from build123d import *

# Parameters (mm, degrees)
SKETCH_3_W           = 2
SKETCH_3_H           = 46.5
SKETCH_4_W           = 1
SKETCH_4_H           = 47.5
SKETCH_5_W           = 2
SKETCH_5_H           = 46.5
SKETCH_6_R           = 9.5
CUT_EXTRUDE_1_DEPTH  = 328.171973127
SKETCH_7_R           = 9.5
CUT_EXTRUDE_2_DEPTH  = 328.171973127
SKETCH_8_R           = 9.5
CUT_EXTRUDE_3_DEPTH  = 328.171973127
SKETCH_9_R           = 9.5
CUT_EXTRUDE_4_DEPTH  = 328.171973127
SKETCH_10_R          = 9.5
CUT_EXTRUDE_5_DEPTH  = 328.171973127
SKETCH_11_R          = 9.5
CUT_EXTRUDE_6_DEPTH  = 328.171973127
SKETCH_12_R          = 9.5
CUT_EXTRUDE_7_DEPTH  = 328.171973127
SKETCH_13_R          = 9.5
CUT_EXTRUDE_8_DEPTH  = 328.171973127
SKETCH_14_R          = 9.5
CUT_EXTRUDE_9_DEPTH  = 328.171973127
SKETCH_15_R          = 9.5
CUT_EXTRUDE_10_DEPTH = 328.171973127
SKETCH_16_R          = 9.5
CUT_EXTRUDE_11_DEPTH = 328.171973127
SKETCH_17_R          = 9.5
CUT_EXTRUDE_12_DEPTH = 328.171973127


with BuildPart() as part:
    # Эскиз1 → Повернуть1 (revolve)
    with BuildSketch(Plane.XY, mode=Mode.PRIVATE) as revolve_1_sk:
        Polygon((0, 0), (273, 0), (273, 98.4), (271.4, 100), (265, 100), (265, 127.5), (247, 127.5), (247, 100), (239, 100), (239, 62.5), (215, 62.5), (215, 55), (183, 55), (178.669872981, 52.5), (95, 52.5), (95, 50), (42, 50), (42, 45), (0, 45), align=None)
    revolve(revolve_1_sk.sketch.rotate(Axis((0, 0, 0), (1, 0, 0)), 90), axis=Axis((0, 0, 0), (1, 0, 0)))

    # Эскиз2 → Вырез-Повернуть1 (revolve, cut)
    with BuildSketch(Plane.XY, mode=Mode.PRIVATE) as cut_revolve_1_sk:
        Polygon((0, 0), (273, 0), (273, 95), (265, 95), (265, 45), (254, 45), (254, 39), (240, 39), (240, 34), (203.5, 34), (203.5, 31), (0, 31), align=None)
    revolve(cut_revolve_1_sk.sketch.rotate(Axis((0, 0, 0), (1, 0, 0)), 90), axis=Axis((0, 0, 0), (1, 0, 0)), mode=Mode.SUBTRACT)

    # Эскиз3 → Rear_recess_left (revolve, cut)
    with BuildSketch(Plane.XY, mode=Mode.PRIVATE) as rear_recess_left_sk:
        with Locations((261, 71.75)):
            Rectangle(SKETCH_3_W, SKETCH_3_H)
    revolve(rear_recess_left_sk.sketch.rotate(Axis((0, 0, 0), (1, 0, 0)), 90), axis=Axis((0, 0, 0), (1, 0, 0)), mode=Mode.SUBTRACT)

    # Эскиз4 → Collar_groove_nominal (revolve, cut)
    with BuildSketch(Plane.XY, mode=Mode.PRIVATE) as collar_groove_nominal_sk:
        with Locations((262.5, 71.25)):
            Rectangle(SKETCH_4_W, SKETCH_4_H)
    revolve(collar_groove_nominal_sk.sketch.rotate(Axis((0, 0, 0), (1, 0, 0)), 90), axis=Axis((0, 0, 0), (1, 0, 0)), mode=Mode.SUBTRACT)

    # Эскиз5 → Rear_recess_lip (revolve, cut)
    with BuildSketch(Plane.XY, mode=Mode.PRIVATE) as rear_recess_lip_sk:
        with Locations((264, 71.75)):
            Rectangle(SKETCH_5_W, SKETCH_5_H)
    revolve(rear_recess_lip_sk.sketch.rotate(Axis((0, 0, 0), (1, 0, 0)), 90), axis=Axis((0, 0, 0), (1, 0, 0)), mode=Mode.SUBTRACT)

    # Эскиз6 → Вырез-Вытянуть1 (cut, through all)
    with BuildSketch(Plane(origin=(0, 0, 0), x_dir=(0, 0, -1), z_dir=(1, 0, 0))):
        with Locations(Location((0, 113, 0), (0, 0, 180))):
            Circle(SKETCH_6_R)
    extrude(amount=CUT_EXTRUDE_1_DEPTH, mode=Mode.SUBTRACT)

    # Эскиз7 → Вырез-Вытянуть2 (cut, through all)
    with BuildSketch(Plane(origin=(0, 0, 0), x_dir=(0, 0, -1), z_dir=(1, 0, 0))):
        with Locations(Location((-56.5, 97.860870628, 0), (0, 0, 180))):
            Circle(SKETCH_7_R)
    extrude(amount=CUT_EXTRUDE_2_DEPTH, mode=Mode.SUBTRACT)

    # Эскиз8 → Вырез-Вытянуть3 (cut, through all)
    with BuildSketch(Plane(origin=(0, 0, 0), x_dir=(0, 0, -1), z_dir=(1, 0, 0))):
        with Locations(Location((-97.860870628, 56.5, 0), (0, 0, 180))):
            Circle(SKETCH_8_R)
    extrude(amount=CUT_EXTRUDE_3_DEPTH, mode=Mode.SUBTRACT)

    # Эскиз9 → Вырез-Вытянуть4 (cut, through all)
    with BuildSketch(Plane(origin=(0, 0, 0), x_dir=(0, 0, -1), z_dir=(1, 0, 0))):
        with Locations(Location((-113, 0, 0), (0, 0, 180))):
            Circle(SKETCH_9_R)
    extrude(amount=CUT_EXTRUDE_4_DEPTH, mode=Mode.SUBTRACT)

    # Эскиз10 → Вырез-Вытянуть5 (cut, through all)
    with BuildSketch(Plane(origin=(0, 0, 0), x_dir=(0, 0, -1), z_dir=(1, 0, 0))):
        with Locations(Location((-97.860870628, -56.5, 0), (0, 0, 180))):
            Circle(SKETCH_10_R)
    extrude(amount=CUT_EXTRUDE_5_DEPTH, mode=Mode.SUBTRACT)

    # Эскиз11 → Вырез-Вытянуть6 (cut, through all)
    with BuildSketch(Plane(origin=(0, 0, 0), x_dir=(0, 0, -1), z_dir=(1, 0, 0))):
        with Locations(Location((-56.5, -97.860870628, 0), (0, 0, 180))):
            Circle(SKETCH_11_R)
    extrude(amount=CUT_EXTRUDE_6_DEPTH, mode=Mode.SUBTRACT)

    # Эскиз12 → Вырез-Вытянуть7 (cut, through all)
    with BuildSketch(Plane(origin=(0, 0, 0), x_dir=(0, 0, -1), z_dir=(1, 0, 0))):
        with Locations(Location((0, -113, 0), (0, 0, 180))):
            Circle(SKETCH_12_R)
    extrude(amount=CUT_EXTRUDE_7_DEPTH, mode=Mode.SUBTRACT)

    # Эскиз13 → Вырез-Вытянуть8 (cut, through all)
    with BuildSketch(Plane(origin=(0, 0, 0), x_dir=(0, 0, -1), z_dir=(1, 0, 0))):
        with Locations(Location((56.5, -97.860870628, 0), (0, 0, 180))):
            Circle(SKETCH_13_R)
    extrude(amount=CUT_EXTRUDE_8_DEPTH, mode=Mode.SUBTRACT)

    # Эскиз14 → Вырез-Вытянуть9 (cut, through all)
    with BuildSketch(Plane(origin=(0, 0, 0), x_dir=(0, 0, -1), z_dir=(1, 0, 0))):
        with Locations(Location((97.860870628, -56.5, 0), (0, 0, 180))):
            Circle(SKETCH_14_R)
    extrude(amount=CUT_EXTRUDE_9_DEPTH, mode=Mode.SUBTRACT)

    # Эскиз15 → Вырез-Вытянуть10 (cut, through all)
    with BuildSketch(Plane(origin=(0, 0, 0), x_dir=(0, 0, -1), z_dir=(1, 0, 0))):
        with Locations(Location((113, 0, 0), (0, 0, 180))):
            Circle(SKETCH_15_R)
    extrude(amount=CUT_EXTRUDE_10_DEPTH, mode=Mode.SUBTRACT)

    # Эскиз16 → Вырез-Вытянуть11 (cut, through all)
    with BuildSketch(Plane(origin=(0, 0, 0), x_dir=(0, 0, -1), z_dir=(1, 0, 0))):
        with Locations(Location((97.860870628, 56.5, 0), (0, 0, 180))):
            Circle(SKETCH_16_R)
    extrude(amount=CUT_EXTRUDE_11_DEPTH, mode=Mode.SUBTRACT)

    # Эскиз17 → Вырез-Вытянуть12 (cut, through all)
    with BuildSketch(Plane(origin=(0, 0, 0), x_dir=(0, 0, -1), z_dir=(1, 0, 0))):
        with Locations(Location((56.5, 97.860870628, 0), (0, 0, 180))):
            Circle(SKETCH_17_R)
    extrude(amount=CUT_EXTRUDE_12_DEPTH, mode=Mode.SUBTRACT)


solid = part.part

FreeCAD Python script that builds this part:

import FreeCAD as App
import Part
import Sketcher

V = App.Vector
Q = App.Units.Quantity

doc = App.newDocument("Part")
body = doc.addObject("PartDesign::Body", "Body")

sketch1 = body.newObject("Sketcher::SketchObject", "Sketch")
sketch1.AttachmentSupport = (doc.getObject("XY_Plane"), [""])
sketch1.MapMode = "FlatFace"
sketch1.addGeometry([
    Part.LineSegment(V(0, 0, 0), V(273, 0, 0)),
    Part.LineSegment(V(273, 0, 0), V(273, 98.4, 0)),
    Part.LineSegment(V(273, 98.4, 0), V(271.4, 100, 0)),
    Part.LineSegment(V(271.4, 100, 0), V(265, 100, 0)),
    Part.LineSegment(V(265, 100, 0), V(265, 127.5, 0)),
    Part.LineSegment(V(265, 127.5, 0), V(247, 127.5, 0)),
    Part.LineSegment(V(247, 127.5, 0), V(247, 100, 0)),
    Part.LineSegment(V(247, 100, 0), V(239, 100, 0)),
    Part.LineSegment(V(239, 100, 0), V(239, 62.5, 0)),
    Part.LineSegment(V(239, 62.5, 0), V(215, 62.5, 0)),
    Part.LineSegment(V(215, 62.5, 0), V(215, 55, 0)),
    Part.LineSegment(V(215, 55, 0), V(183, 55, 0)),
    Part.LineSegment(V(183, 55, 0), V(178.669873, 52.5, 0)),
    Part.LineSegment(V(178.669873, 52.5, 0), V(95, 52.5, 0)),
    Part.LineSegment(V(95, 52.5, 0), V(95, 50, 0)),
    Part.LineSegment(V(95, 50, 0), V(42, 50, 0)),
    Part.LineSegment(V(42, 50, 0), V(42, 45, 0)),
    Part.LineSegment(V(42, 45, 0), V(0, 45, 0)),
    Part.LineSegment(V(0, 45, 0), V(0, 0, 0)),
], False)
sketch1.addConstraint([
    Sketcher.Constraint("Coincident", 0, 2, 1, 1),
    Sketcher.Constraint("Coincident", 1, 2, 2, 1),
    Sketcher.Constraint("Coincident", 2, 2, 3, 1),
    Sketcher.Constraint("Coincident", 3, 2, 4, 1),
    Sketcher.Constraint("Coincident", 4, 2, 5, 1),
    Sketcher.Constraint("Coincident", 5, 2, 6, 1),
    Sketcher.Constraint("Coincident", 6, 2, 7, 1),
    Sketcher.Constraint("Coincident", 7, 2, 8, 1),
    Sketcher.Constraint("Coincident", 8, 2, 9, 1),
    Sketcher.Constraint("Coincident", 9, 2, 10, 1),
    Sketcher.Constraint("Coincident", 10, 2, 11, 1),
    Sketcher.Constraint("Coincident", 11, 2, 12, 1),
    Sketcher.Constraint("Coincident", 12, 2, 13, 1),
    Sketcher.Constraint("Coincident", 13, 2, 14, 1),
    Sketcher.Constraint("Coincident", 14, 2, 15, 1),
    Sketcher.Constraint("Coincident", 15, 2, 16, 1),
    Sketcher.Constraint("Coincident", 16, 2, 17, 1),
    Sketcher.Constraint("Coincident", 17, 2, 18, 1),
    Sketcher.Constraint("Coincident", 18, 2, 0, 1),
    Sketcher.Constraint("Horizontal", 0),
    Sketcher.Constraint("Vertical", 1),
    Sketcher.Constraint("Horizontal", 3),
    Sketcher.Constraint("Vertical", 4),
    Sketcher.Constraint("Horizontal", 5),
    Sketcher.Constraint("Vertical", 6),
    Sketcher.Constraint("Horizontal", 7),
    Sketcher.Constraint("Vertical", 8),
    Sketcher.Constraint("Horizontal", 9),
    Sketcher.Constraint("Vertical", 10),
    Sketcher.Constraint("Horizontal", 11),
    Sketcher.Constraint("Horizontal", 13),
    Sketcher.Constraint("Vertical", 14),
    Sketcher.Constraint("Horizontal", 15),
    Sketcher.Constraint("Vertical", 16),
    Sketcher.Constraint("Horizontal", 17),
    Sketcher.Constraint("Vertical", 18),
    Sketcher.Constraint("Coincident", 18, 2, -1, 1),
    Sketcher.Constraint("Horizontal", 3, 2, 6, 2),
    Sketcher.Constraint("DistanceX", 0, 1, 0, 2, 273.0),
    Sketcher.Constraint("DistanceX", 5, 2, 5, 1, 18.0),
    Sketcher.Constraint("DistanceX", 7, 2, 7, 1, 8.0),
    Sketcher.Constraint("DistanceX", 9, 2, 9, 1, 24.0),
    Sketcher.Constraint("DistanceX", 11, 2, 11, 1, 32.0),
    Sketcher.Constraint("DistanceX", 15, 2, 15, 1, 53.0),
    Sketcher.Constraint("DistanceX", 17, 2, 17, 1, 42.0),
    Sketcher.Constraint("DistanceY", 16, 2, 16, 1, 5.0),
    Sketcher.Constraint("DistanceY", 18, 2, 18, 1, 45.0),
    Sketcher.Constraint("Angle", 2, Q("135 deg")),
    Sketcher.Constraint("Angle", 12, Q("-150 deg")),
    Sketcher.Constraint("Distance", 12, 5.0),
    Sketcher.Constraint("DistanceX", 3, 2, 3, 1, 6.4),
    Sketcher.Constraint("DistanceY", 1, 1, 1, 2, 98.4),
    Sketcher.Constraint("DistanceY", 4, 1, 4, 2, 27.5),
    Sketcher.Constraint("DistanceY", 8, 2, 8, 1, 37.5),
    Sketcher.Constraint("DistanceY", 10, 2, 10, 1, 7.5),
    Sketcher.Constraint("DistanceY", 14, 2, 14, 1, 2.5),
])
revolution = body.newObject("PartDesign::Revolution", "Revolution")
revolution.Profile = sketch1
revolution.ReferenceAxis = (sketch1, ["H_Axis"])
revolution.Angle = 360

sketch2 = body.newObject("Sketcher::SketchObject", "Sketch001")
sketch2.AttachmentSupport = (doc.getObject("XY_Plane"), [""])
sketch2.MapMode = "FlatFace"
sketch2.addGeometry([
    Part.LineSegment(V(0, 0, 0), V(273, 0, 0)),
    Part.LineSegment(V(273, 0, 0), V(273, 95, 0)),
    Part.LineSegment(V(273, 95, 0), V(265, 95, 0)),
    Part.LineSegment(V(265, 95, 0), V(265, 45, 0)),
    Part.LineSegment(V(265, 45, 0), V(254, 45, 0)),
    Part.LineSegment(V(254, 45, 0), V(254, 39, 0)),
    Part.LineSegment(V(254, 39, 0), V(240, 39, 0)),
    Part.LineSegment(V(240, 39, 0), V(240, 34, 0)),
    Part.LineSegment(V(240, 34, 0), V(203.5, 34, 0)),
    Part.LineSegment(V(203.5, 34, 0), V(203.5, 31, 0)),
    Part.LineSegment(V(203.5, 31, 0), V(0, 31, 0)),
    Part.LineSegment(V(0, 31, 0), V(0, 0, 0)),
], False)
sketch2.addConstraint([
    Sketcher.Constraint("Coincident", 0, 2, 1, 1),
    Sketcher.Constraint("Coincident", 1, 2, 2, 1),
    Sketcher.Constraint("Coincident", 2, 2, 3, 1),
    Sketcher.Constraint("Coincident", 3, 2, 4, 1),
    Sketcher.Constraint("Coincident", 4, 2, 5, 1),
    Sketcher.Constraint("Coincident", 5, 2, 6, 1),
    Sketcher.Constraint("Coincident", 6, 2, 7, 1),
    Sketcher.Constraint("Coincident", 7, 2, 8, 1),
    Sketcher.Constraint("Coincident", 8, 2, 9, 1),
    Sketcher.Constraint("Coincident", 9, 2, 10, 1),
    Sketcher.Constraint("Coincident", 10, 2, 11, 1),
    Sketcher.Constraint("Coincident", 11, 2, 0, 1),
    Sketcher.Constraint("Horizontal", 0),
    Sketcher.Constraint("Vertical", 1),
    Sketcher.Constraint("Horizontal", 2),
    Sketcher.Constraint("Vertical", 3),
    Sketcher.Constraint("Horizontal", 4),
    Sketcher.Constraint("Vertical", 5),
    Sketcher.Constraint("Horizontal", 6),
    Sketcher.Constraint("Vertical", 7),
    Sketcher.Constraint("Horizontal", 8),
    Sketcher.Constraint("Vertical", 9),
    Sketcher.Constraint("Horizontal", 10),
    Sketcher.Constraint("Vertical", 11),
    Sketcher.Constraint("Coincident", 11, 2, -1, 1),
    Sketcher.Constraint("DistanceX", 0, 1, 0, 2, 273.0),
    Sketcher.Constraint("DistanceX", 2, 2, 2, 1, 8.0),
    Sketcher.Constraint("DistanceX", 4, 2, 4, 1, 11.0),
    Sketcher.Constraint("DistanceX", 6, 2, 6, 1, 14.0),
    Sketcher.Constraint("DistanceY", 1, 1, 1, 2, 95.0),
    Sketcher.Constraint("DistanceY", 3, 2, 3, 1, 50.0),
    Sketcher.Constraint("DistanceY", 5, 2, 5, 1, 6.0),
    Sketcher.Constraint("DistanceY", 7, 2, 7, 1, 5.0),
    Sketcher.Constraint("DistanceY", 9, 2, 9, 1, 3.0),
    Sketcher.Constraint("DistanceX", 8, 2, 8, 1, 36.5),
])
groove = body.newObject("PartDesign::Groove", "Groove")
groove.Profile = sketch2
groove.ReferenceAxis = (sketch2, ["H_Axis"])
groove.Angle = 360

sketch3 = body.newObject("Sketcher::SketchObject", "Sketch002")
sketch3.AttachmentSupport = (doc.getObject("XY_Plane"), [""])
sketch3.MapMode = "FlatFace"
sketch3.addGeometry([
    Part.LineSegment(V(260, 95, 0), V(260, 48.5, 0)),
    Part.LineSegment(V(260, 48.5, 0), V(262, 48.5, 0)),
    Part.LineSegment(V(262, 48.5, 0), V(262, 95, 0)),
    Part.LineSegment(V(262, 95, 0), V(260, 95, 0)),
], False)
sketch3.addConstraint([
    Sketcher.Constraint("Coincident", 0, 2, 1, 1),
    Sketcher.Constraint("Coincident", 1, 2, 2, 1),
    Sketcher.Constraint("Coincident", 2, 2, 3, 1),
    Sketcher.Constraint("Coincident", 3, 2, 0, 1),
    Sketcher.Constraint("Vertical", 0),
    Sketcher.Constraint("Horizontal", 1),
    Sketcher.Constraint("Vertical", 2),
    Sketcher.Constraint("Horizontal", 3),
    Sketcher.Constraint("DistanceX", 1, 1, 1, 2, 2.0),
    Sketcher.Constraint("DistanceY", 0, 2, 0, 1, 46.5),
    Sketcher.Constraint("DistanceX", -1, 1, 0, 2, 260.0),
    Sketcher.Constraint("DistanceY", -1, 1, 2, 2, 95.0),
])
groove2 = body.newObject("PartDesign::Groove", "Groove001")
groove2.Profile = sketch3
groove2.ReferenceAxis = (sketch3, ["H_Axis"])
groove2.Angle = 360

sketch4 = body.newObject("Sketcher::SketchObject", "Sketch003")
sketch4.AttachmentSupport = (doc.getObject("XY_Plane"), [""])
sketch4.MapMode = "FlatFace"
sketch4.addGeometry([
    Part.LineSegment(V(262, 95, 0), V(262, 47.5, 0)),
    Part.LineSegment(V(262, 47.5, 0), V(263, 47.5, 0)),
    Part.LineSegment(V(263, 47.5, 0), V(263, 95, 0)),
    Part.LineSegment(V(263, 95, 0), V(262, 95, 0)),
], False)
sketch4.addConstraint([
    Sketcher.Constraint("Coincident", 0, 2, 1, 1),
    Sketcher.Constraint("Coincident", 1, 2, 2, 1),
    Sketcher.Constraint("Coincident", 2, 2, 3, 1),
    Sketcher.Constraint("Coincident", 3, 2, 0, 1),
    Sketcher.Constraint("Vertical", 0),
    Sketcher.Constraint("Horizontal", 1),
    Sketcher.Constraint("Vertical", 2),
    Sketcher.Constraint("Horizontal", 3),
    Sketcher.Constraint("DistanceX", 1, 1, 1, 2, 1.0),
    Sketcher.Constraint("DistanceY", 0, 2, 0, 1, 47.5),
    Sketcher.Constraint("DistanceX", -1, 1, 0, 2, 262.0),
    Sketcher.Constraint("DistanceY", -1, 1, 2, 2, 95.0),
])
groove3 = body.newObject("PartDesign::Groove", "Groove002")
groove3.Profile = sketch4
groove3.ReferenceAxis = (sketch4, ["H_Axis"])
groove3.Angle = 360

sketch5 = body.newObject("Sketcher::SketchObject", "Sketch004")
sketch5.AttachmentSupport = (doc.getObject("XY_Plane"), [""])
sketch5.MapMode = "FlatFace"
sketch5.addGeometry([
    Part.LineSegment(V(263, 95, 0), V(263, 48.5, 0)),
    Part.LineSegment(V(263, 48.5, 0), V(265, 48.5, 0)),
    Part.LineSegment(V(265, 48.5, 0), V(265, 95, 0)),
    Part.LineSegment(V(265, 95, 0), V(263, 95, 0)),
], False)
sketch5.addConstraint([
    Sketcher.Constraint("Coincident", 0, 2, 1, 1),
    Sketcher.Constraint("Coincident", 1, 2, 2, 1),
    Sketcher.Constraint("Coincident", 2, 2, 3, 1),
    Sketcher.Constraint("Coincident", 3, 2, 0, 1),
    Sketcher.Constraint("Vertical", 0),
    Sketcher.Constraint("Horizontal", 1),
    Sketcher.Constraint("Vertical", 2),
    Sketcher.Constraint("Horizontal", 3),
    Sketcher.Constraint("DistanceX", 1, 1, 1, 2, 2.0),
    Sketcher.Constraint("DistanceY", 0, 2, 0, 1, 46.5),
    Sketcher.Constraint("DistanceX", -1, 1, 0, 2, 263.0),
    Sketcher.Constraint("DistanceY", -1, 1, 2, 2, 95.0),
])
groove4 = body.newObject("PartDesign::Groove", "Groove003")
groove4.Profile = sketch5
groove4.ReferenceAxis = (sketch5, ["H_Axis"])
groove4.Angle = 360

sketch6 = body.newObject("Sketcher::SketchObject", "Sketch005")
sketch6.AttachmentSupport = (doc.getObject("YZ_Plane"), [""])
sketch6.MapMode = "FlatFace"
sketch6.addGeometry(Part.Circle(V(113, 0, 0), V(0, 0, 1), 9.5), False)
sketch6.addConstraint([
    Sketcher.Constraint("PointOnObject", 0, 3, -1),
    Sketcher.Constraint("Diameter", 0, 19.0),
    Sketcher.Constraint("DistanceX", -1, 1, 0, 3, 113.0),
])
pocket1 = body.newObject("PartDesign::Pocket", "Pocket")
pocket1.Profile = sketch6
pocket1.Type = "ThroughAll"
pocket1.Reversed = True

sketch7 = body.newObject("Sketcher::SketchObject", "Sketch006")
sketch7.AttachmentSupport = (doc.getObject("YZ_Plane"), [""])
sketch7.MapMode = "FlatFace"
sketch7.addGeometry(Part.Circle(V(97.860871, 56.5, 0), V(0, 0, 1), 9.5), False)
sketch7.addConstraint([
    Sketcher.Constraint("Diameter", 0, 19.0),
    Sketcher.Constraint("DistanceY", -1, 1, 0, 3, 56.5),
    Sketcher.Constraint("DistanceX", -1, 1, 0, 3, 97.860871),
])
pocket2 = body.newObject("PartDesign::Pocket", "Pocket001")
pocket2.Profile = sketch7
pocket2.Type = "ThroughAll"
pocket2.Reversed = True

sketch8 = body.newObject("Sketcher::SketchObject", "Sketch007")
sketch8.AttachmentSupport = (doc.getObject("YZ_Plane"), [""])
sketch8.MapMode = "FlatFace"
sketch8.addGeometry(Part.Circle(V(56.5, 97.860871, 0), V(0, 0, 1), 9.5), False)
sketch8.addConstraint([
    Sketcher.Constraint("Diameter", 0, 19.0),
    Sketcher.Constraint("DistanceX", -1, 1, 0, 3, 56.5),
    Sketcher.Constraint("DistanceY", -1, 1, 0, 3, 97.860871),
])
pocket3 = body.newObject("PartDesign::Pocket", "Pocket002")
pocket3.Profile = sketch8
pocket3.Type = "ThroughAll"
pocket3.Reversed = True

sketch9 = body.newObject("Sketcher::SketchObject", "Sketch008")
sketch9.AttachmentSupport = (doc.getObject("YZ_Plane"), [""])
sketch9.MapMode = "FlatFace"
sketch9.addGeometry(Part.Circle(V(0, 113, 0), V(0, 0, 1), 9.5), False)
sketch9.addConstraint([
    Sketcher.Constraint("PointOnObject", 0, 3, -2),
    Sketcher.Constraint("Diameter", 0, 19.0),
    Sketcher.Constraint("DistanceY", -1, 1, 0, 3, 113.0),
])
pocket4 = body.newObject("PartDesign::Pocket", "Pocket003")
pocket4.Profile = sketch9
pocket4.Type = "ThroughAll"
pocket4.Reversed = True

sketch10 = body.newObject("Sketcher::SketchObject", "Sketch009")
sketch10.AttachmentSupport = (doc.getObject("YZ_Plane"), [""])
sketch10.MapMode = "FlatFace"
sketch10.addGeometry(Part.Circle(V(-56.5, 97.860871, 0), V(0, 0, 1), 9.5), False)
sketch10.addConstraint([
    Sketcher.Constraint("Diameter", 0, 19.0),
    Sketcher.Constraint("DistanceX", 0, 3, -1, 1, 56.5),
    Sketcher.Constraint("DistanceY", -1, 1, 0, 3, 97.860871),
])
pocket5 = body.newObject("PartDesign::Pocket", "Pocket004")
pocket5.Profile = sketch10
pocket5.Type = "ThroughAll"
pocket5.Reversed = True

sketch11 = body.newObject("Sketcher::SketchObject", "Sketch010")
sketch11.AttachmentSupport = (doc.getObject("YZ_Plane"), [""])
sketch11.MapMode = "FlatFace"
sketch11.addGeometry(Part.Circle(V(-97.860871, 56.5, 0), V(0, 0, 1), 9.5), False)
sketch11.addConstraint([
    Sketcher.Constraint("Diameter", 0, 19.0),
    Sketcher.Constraint("DistanceY", -1, 1, 0, 3, 56.5),
    Sketcher.Constraint("DistanceX", 0, 3, -1, 1, 97.860871),
])
pocket6 = body.newObject("PartDesign::Pocket", "Pocket005")
pocket6.Profile = sketch11
pocket6.Type = "ThroughAll"
pocket6.Reversed = True

sketch12 = body.newObject("Sketcher::SketchObject", "Sketch011")
sketch12.AttachmentSupport = (doc.getObject("YZ_Plane"), [""])
sketch12.MapMode = "FlatFace"
sketch12.addGeometry(Part.Circle(V(-113, 0, 0), V(0, 0, 1), 9.5), False)
sketch12.addConstraint([
    Sketcher.Constraint("PointOnObject", 0, 3, -1),
    Sketcher.Constraint("Diameter", 0, 19.0),
    Sketcher.Constraint("DistanceX", 0, 3, -1, 1, 113.0),
])
pocket7 = body.newObject("PartDesign::Pocket", "Pocket006")
pocket7.Profile = sketch12
pocket7.Type = "ThroughAll"
pocket7.Reversed = True

sketch13 = body.newObject("Sketcher::SketchObject", "Sketch012")
sketch13.AttachmentSupport = (doc.getObject("YZ_Plane"), [""])
sketch13.MapMode = "FlatFace"
sketch13.addGeometry(Part.Circle(V(-97.860871, -56.5, 0), V(0, 0, 1), 9.5), False)
sketch13.addConstraint([
    Sketcher.Constraint("Diameter", 0, 19.0),
    Sketcher.Constraint("DistanceY", 0, 3, -1, 1, 56.5),
    Sketcher.Constraint("DistanceX", 0, 3, -1, 1, 97.860871),
])
pocket8 = body.newObject("PartDesign::Pocket", "Pocket007")
pocket8.Profile = sketch13
pocket8.Type = "ThroughAll"
pocket8.Reversed = True

sketch14 = body.newObject("Sketcher::SketchObject", "Sketch013")
sketch14.AttachmentSupport = (doc.getObject("YZ_Plane"), [""])
sketch14.MapMode = "FlatFace"
sketch14.addGeometry(Part.Circle(V(-56.5, -97.860871, 0), V(0, 0, 1), 9.5), False)
sketch14.addConstraint([
    Sketcher.Constraint("Diameter", 0, 19.0),
    Sketcher.Constraint("DistanceX", 0, 3, -1, 1, 56.5),
    Sketcher.Constraint("DistanceY", 0, 3, -1, 1, 97.860871),
])
pocket9 = body.newObject("PartDesign::Pocket", "Pocket008")
pocket9.Profile = sketch14
pocket9.Type = "ThroughAll"
pocket9.Reversed = True

sketch15 = body.newObject("Sketcher::SketchObject", "Sketch014")
sketch15.AttachmentSupport = (doc.getObject("YZ_Plane"), [""])
sketch15.MapMode = "FlatFace"
sketch15.addGeometry(Part.Circle(V(0, -113, 0), V(0, 0, 1), 9.5), False)
sketch15.addConstraint([
    Sketcher.Constraint("PointOnObject", 0, 3, -2),
    Sketcher.Constraint("Diameter", 0, 19.0),
    Sketcher.Constraint("DistanceY", 0, 3, -1, 1, 113.0),
])
pocket10 = body.newObject("PartDesign::Pocket", "Pocket009")
pocket10.Profile = sketch15
pocket10.Type = "ThroughAll"
pocket10.Reversed = True

sketch16 = body.newObject("Sketcher::SketchObject", "Sketch015")
sketch16.AttachmentSupport = (doc.getObject("YZ_Plane"), [""])
sketch16.MapMode = "FlatFace"
sketch16.addGeometry(Part.Circle(V(56.5, -97.860871, 0), V(0, 0, 1), 9.5), False)
sketch16.addConstraint([
    Sketcher.Constraint("Diameter", 0, 19.0),
    Sketcher.Constraint("DistanceX", -1, 1, 0, 3, 56.5),
    Sketcher.Constraint("DistanceY", 0, 3, -1, 1, 97.860871),
])
pocket11 = body.newObject("PartDesign::Pocket", "Pocket010")
pocket11.Profile = sketch16
pocket11.Type = "ThroughAll"
pocket11.Reversed = True

sketch17 = body.newObject("Sketcher::SketchObject", "Sketch016")
sketch17.AttachmentSupport = (doc.getObject("YZ_Plane"), [""])
sketch17.MapMode = "FlatFace"
sketch17.addGeometry(Part.Circle(V(97.860871, -56.5, 0), V(0, 0, 1), 9.5), False)
sketch17.addConstraint([
    Sketcher.Constraint("Diameter", 0, 19.0),
    Sketcher.Constraint("DistanceY", 0, 3, -1, 1, 56.5),
    Sketcher.Constraint("DistanceX", -1, 1, 0, 3, 97.860871),
])
pocket12 = body.newObject("PartDesign::Pocket", "Pocket011")
pocket12.Profile = sketch17
pocket12.Type = "ThroughAll"
pocket12.Reversed = True

doc.recompute()
